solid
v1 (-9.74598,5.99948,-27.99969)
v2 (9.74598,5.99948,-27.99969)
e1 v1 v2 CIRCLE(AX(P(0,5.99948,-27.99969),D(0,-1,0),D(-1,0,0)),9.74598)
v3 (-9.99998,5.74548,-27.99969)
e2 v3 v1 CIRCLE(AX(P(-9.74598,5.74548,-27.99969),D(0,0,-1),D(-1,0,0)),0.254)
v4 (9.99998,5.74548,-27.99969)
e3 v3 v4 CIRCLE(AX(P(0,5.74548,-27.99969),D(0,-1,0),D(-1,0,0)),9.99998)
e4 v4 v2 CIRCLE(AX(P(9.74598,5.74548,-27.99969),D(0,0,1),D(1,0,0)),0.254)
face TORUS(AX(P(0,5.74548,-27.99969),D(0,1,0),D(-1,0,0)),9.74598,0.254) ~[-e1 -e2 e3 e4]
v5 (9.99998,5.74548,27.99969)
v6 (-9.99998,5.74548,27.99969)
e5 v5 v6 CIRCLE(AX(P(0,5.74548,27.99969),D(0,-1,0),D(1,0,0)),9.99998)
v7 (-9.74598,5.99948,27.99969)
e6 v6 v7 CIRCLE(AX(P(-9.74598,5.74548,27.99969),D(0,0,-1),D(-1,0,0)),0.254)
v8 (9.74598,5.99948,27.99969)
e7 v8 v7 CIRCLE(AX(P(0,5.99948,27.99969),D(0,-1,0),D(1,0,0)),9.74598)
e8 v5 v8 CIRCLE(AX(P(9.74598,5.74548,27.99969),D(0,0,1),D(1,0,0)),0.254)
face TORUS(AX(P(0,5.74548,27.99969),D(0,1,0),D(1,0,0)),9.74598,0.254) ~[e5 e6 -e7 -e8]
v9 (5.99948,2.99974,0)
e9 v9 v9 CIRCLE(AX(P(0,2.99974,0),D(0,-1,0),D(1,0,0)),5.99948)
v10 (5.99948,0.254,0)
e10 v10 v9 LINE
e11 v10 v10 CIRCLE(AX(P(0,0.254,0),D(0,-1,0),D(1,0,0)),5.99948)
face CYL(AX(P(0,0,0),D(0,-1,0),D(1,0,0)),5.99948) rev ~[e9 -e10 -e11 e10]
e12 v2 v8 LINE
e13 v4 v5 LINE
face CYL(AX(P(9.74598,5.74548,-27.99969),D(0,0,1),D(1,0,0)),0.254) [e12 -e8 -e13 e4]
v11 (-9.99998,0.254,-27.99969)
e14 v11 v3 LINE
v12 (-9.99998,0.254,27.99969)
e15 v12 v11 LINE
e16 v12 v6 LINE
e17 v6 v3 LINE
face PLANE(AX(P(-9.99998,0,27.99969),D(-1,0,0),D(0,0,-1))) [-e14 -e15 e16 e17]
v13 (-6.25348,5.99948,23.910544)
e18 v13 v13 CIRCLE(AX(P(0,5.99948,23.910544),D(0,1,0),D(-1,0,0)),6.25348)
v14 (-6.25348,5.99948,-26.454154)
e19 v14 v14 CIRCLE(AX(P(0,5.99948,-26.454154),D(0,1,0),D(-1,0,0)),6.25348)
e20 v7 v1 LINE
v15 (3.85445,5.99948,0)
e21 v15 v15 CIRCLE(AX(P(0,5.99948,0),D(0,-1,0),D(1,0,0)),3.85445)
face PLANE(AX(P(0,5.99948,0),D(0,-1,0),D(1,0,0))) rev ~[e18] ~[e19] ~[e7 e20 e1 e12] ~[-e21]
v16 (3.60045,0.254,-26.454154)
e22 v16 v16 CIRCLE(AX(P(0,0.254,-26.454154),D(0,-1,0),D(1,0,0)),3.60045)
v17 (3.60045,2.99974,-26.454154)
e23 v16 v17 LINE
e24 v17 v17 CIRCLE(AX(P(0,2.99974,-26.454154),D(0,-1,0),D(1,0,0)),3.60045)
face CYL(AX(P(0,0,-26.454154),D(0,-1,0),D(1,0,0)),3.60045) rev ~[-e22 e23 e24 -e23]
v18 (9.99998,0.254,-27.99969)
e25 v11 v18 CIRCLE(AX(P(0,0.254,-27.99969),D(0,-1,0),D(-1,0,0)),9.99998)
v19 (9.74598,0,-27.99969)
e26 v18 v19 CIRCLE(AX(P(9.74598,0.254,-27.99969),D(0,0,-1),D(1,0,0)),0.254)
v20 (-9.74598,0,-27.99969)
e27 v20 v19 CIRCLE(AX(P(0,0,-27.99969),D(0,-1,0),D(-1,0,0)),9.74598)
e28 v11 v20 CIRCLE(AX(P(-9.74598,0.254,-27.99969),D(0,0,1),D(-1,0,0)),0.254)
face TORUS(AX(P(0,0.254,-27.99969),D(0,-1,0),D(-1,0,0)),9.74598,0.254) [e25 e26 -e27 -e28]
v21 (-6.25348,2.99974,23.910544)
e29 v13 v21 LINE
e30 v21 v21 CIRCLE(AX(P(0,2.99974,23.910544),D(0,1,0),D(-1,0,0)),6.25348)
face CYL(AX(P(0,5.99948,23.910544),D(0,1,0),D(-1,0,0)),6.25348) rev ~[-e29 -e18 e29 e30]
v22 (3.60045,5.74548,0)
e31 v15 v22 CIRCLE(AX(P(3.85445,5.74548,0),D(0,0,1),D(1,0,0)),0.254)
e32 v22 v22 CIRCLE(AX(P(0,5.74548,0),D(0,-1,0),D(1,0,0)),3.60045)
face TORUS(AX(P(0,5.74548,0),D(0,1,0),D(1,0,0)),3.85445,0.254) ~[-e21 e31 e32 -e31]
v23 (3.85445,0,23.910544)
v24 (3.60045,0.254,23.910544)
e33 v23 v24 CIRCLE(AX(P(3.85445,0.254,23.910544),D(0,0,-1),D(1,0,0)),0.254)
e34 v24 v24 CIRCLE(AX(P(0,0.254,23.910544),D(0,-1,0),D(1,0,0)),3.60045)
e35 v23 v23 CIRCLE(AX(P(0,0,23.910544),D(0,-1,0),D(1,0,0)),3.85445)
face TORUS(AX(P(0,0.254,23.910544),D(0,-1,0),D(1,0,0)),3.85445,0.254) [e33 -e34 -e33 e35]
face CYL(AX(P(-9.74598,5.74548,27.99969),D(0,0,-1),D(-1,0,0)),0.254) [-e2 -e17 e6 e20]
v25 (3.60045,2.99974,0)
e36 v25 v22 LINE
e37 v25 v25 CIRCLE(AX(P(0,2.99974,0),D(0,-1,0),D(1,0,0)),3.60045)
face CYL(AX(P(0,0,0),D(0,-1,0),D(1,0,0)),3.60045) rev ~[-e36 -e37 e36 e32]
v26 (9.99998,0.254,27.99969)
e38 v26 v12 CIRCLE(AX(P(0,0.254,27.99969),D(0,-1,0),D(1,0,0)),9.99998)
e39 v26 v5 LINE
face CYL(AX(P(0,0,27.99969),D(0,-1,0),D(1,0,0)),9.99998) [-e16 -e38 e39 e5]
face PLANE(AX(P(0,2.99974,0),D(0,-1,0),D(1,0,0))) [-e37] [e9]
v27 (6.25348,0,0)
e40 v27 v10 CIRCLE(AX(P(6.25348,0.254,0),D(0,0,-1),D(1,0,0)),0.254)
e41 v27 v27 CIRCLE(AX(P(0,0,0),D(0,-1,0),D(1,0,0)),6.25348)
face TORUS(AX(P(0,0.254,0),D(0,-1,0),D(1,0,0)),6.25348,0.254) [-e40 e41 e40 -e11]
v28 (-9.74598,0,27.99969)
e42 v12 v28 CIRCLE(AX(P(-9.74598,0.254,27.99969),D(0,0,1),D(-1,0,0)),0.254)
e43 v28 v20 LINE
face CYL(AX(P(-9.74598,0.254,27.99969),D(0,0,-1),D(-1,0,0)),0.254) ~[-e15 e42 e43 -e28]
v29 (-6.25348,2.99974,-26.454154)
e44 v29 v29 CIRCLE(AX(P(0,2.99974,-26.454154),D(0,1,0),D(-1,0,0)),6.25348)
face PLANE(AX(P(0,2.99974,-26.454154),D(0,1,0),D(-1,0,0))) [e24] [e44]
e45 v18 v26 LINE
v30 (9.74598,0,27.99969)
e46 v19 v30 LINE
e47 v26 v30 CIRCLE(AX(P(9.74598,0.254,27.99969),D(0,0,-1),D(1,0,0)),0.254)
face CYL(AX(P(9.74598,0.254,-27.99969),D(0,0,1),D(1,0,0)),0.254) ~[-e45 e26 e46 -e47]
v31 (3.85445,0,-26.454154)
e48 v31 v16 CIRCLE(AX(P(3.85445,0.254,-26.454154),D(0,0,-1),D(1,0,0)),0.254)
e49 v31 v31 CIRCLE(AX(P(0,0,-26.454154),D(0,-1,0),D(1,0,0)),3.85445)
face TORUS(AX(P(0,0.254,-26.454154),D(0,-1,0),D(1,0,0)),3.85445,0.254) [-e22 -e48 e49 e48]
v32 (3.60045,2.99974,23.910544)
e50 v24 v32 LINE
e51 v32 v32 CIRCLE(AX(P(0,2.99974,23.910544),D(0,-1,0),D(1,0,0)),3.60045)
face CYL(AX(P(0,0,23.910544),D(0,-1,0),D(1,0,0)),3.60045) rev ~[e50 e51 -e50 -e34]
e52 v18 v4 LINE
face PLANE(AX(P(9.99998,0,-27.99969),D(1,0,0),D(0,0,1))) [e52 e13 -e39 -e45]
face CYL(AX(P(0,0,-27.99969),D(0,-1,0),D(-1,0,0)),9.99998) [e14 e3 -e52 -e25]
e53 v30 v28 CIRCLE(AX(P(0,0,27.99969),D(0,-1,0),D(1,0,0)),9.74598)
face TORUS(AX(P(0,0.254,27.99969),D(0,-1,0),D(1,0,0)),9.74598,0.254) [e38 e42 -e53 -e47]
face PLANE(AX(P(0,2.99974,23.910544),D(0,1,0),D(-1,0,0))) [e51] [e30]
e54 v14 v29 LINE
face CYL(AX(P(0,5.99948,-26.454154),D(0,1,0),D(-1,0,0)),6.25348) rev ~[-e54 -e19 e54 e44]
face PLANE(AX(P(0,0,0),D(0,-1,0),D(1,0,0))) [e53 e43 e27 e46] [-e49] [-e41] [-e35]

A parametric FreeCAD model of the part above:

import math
import FreeCAD as App
import Part
import Sketcher
Q = App.Units.Quantity


def edges_at(feature, points):
    """Names of the edges that pass closest to the given points."""
    edges = feature.Shape.Edges
    near = lambda p: min(range(len(edges)), key=lambda i: edges[i].distToShape(Part.Vertex(*p))[0])
    return sorted({f"Edge{near(p) + 1}" for p in points})

doc = App.newDocument("Part")
body = doc.addObject("PartDesign::Body", "Body")

sketch1 = doc.addObject("Sketcher::SketchObject", "Sketch")
body.addObject(sketch1)
sketch1.AttachmentSupport = (doc.XZ_Plane, [""])
sketch1.MapMode = "FlatFace"
sketch1.addGeometry([
    Part.ArcOfCircle(Part.Circle(App.Vector(0, -28, 0), App.Vector(0, 0, 1), 10), math.radians(180), math.radians(360)),
    Part.LineSegment(App.Vector(10, -28, 0), App.Vector(10, 28, 0)),
    Part.ArcOfCircle(Part.Circle(App.Vector(0, 28, 0), App.Vector(0, 0, 1), 10), math.radians(0), math.radians(180)),
    Part.LineSegment(App.Vector(-10, 28, 0), App.Vector(-10, -28, 0)),
    Part.Circle(App.Vector(0, -26.5, 0), App.Vector(0, 0, 1), 3.6),
    Part.Circle(App.Vector(0, 0, 0), App.Vector(0, 0, 1), 3.6),
    Part.Circle(App.Vector(0, 23.9, 0), App.Vector(0, 0, 1), 3.6),
], False)
sketch1.addConstraint([
    Sketcher.Constraint("Tangent", 0, 2, 1, 1),
    Sketcher.Constraint("Tangent", 1, 2, 2, 1),
    Sketcher.Constraint("Tangent", 2, 2, 3, 1),
    Sketcher.Constraint("Tangent", 3, 2, 0, 1),
    Sketcher.Constraint("Vertical", 1),
    Sketcher.Constraint("Vertical", 3),
    Sketcher.Constraint("Coincident", 5, 3, -1, 1),
    Sketcher.Constraint("Equal", 4, 5),
    Sketcher.Constraint("Equal", 5, 6),
    Sketcher.Constraint("Symmetric", 0, 3, 2, 3, -1, 1),
    Sketcher.Constraint("PointOnObject", 4, 3, -2),
    Sketcher.Constraint("PointOnObject", 6, 3, -2),
    Sketcher.Constraint("Diameter", 4, Q("0.2835 in")),
    Sketcher.Constraint("Radius", 0, Q("0.3937 in")),
    Sketcher.Constraint("DistanceY", 1, 1, 1, 2, Q("2.2047 in")),
    Sketcher.Constraint("DistanceY", 4, 3, 6, 3, Q("50.364698 mm")),
    Sketcher.Constraint("DistanceY", 4, 3, -1, 1, Q("26.454154 mm")),
])
pad1 = doc.addObject("PartDesign::Pad", "Pad")
body.addObject(pad1)
pad1.Profile = sketch1
pad1.Length = Q("0.2362 in")
pad1.Reversed = True

sketch2 = doc.addObject("Sketcher::SketchObject", "Sketch001")
body.addObject(sketch2)
sketch2.AttachmentSupport = (doc.XZ_Plane, [""])
sketch2.MapMode = "FlatFace"
sketch2.addGeometry(Part.Circle(App.Vector(0, 0, 0), App.Vector(0, 0, 1), 6), False)
sketch2.addConstraint([
    Sketcher.Constraint("Coincident", 0, 3, -1, 1),
    Sketcher.Constraint("Diameter", 0, Q("0.4724 in")),
])
pocket1 = doc.addObject("PartDesign::Pocket", "Pocket")
body.addObject(pocket1)
pocket1.Profile = sketch2
pocket1.Length = Q("0.1181 in")
doc.recompute()

fillet = doc.addObject("PartDesign::Fillet", "Fillet")
body.addObject(fillet)
fillet.Base = (pocket1, edges_at(pocket1, [
    (0, 0, -38),
    (-10, 0, 0),
    (10, 0, 0),
    (0, 0, 38),
    (-3.6, 0, -26.454),
    (-5.999, 0, 0),
    (-3.6, 0, 23.911),
    (0, 5.999, -38),
    (10, 5.999, 0),
    (0, 5.999, 38),
    (-10, 5.999, 0),
    (-3.6, 5.999, -26.454),
    (-3.6, 5.999, 0),
    (-3.6, 5.999, 23.911),
]))
fillet.Radius = Q("0.01 in")

sketch3 = doc.addObject("Sketcher::SketchObject", "Sketch002")
body.addObject(sketch3)
sketch3.AttachmentSupport = (doc.XZ_Plane, [""])
sketch3.MapMode = "FlatFace"
sketch3.AttachmentOffset = App.Placement(App.Vector(0, 0, -0.2362 * 25.4), App.Rotation())
sketch3.addGeometry([
    Part.Circle(App.Vector(0, 24, 0), App.Vector(0, 0, 1), 6),
    Part.Circle(App.Vector(0, -26, 0), App.Vector(0, 0, 1), 6),
], False)
sketch3.addConstraint([
    Sketcher.Constraint("Equal", 0, 1),
    Sketcher.Constraint("PointOnObject", 0, 3, -2),
    Sketcher.Constraint("PointOnObject", 1, 3, -2),
    Sketcher.Constraint("Diameter", 0, Q("0.4924 in")),
    Sketcher.Constraint("DistanceY", 1, 3, 0, 3, Q("50.364698 mm")),
    Sketcher.Constraint("DistanceY", -1, 1, 0, 3, Q("23.910544 mm")),
])
pocket2 = doc.addObject("PartDesign::Pocket", "Pocket001")
body.addObject(pocket2)
pocket2.Profile = sketch3
pocket2.Length = Q("0.1181 in")
pocket2.Reversed = True

doc.recompute()
